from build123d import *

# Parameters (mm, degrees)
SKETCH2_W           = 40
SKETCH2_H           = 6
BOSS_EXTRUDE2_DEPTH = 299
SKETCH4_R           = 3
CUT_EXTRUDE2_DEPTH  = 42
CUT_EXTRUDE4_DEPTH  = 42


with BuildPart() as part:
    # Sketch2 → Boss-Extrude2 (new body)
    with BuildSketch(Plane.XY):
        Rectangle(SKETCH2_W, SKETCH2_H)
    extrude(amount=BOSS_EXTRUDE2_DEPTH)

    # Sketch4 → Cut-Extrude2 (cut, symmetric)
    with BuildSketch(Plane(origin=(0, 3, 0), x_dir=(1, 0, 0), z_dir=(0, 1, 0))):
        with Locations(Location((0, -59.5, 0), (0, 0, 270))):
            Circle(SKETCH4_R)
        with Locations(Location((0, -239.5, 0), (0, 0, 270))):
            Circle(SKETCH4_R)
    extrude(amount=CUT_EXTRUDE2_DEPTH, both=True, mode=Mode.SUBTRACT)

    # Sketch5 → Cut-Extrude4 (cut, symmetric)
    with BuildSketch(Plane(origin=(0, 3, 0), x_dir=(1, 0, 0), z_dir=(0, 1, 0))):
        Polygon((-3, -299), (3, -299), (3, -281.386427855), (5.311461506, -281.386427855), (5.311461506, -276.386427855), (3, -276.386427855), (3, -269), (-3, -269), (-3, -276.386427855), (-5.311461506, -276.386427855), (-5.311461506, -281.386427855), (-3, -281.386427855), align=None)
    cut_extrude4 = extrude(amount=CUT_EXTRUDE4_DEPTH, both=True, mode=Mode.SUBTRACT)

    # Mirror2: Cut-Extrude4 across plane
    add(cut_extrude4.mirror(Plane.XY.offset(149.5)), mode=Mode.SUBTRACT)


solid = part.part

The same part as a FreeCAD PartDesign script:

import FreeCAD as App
import Part
import Sketcher

doc = App.newDocument("Part")
body = doc.addObject("PartDesign::Body", "Body")

# Sketch on XY plane
sketch1 = body.newObject("Sketcher::SketchObject", "Sketch")
sketch1.AttachmentSupport = (doc.getObject("XY_Plane"), [""])
sketch1.MapMode = "FlatFace"
sketch1.addGeometry(Part.LineSegment(App.Vector(-20, 3, 0), App.Vector(-20, -3, 0)), False)
sketch1.addGeometry(Part.LineSegment(App.Vector(-20, -3, 0), App.Vector(20, -3, 0)), False)
sketch1.addGeometry(Part.LineSegment(App.Vector(20, -3, 0), App.Vector(20, 3, 0)), False)
sketch1.addGeometry(Part.LineSegment(App.Vector(20, 3, 0), App.Vector(-20, 3, 0)), False)
sketch1.addConstraint(Sketcher.Constraint("Coincident", 0, 2, 1, 1))
sketch1.addConstraint(Sketcher.Constraint("Coincident", 1, 2, 2, 1))
sketch1.addConstraint(Sketcher.Constraint("Coincident", 2, 2, 3, 1))
sketch1.addConstraint(Sketcher.Constraint("Coincident", 3, 2, 0, 1))
sketch1.addConstraint(Sketcher.Constraint("Vertical", 0))
sketch1.addConstraint(Sketcher.Constraint("Horizontal", 1))
sketch1.addConstraint(Sketcher.Constraint("Vertical", 2))
sketch1.addConstraint(Sketcher.Constraint("Horizontal", 3))
sketch1.addConstraint(Sketcher.Constraint("Symmetric", 0, 2, 2, 2, -1, 1))
sketch1.addConstraint(Sketcher.Constraint("DistanceX", 1, 1, 1, 2, 40.0))
sketch1.addConstraint(Sketcher.Constraint("DistanceY", 0, 2, 0, 1, 6.0))
pad1 = body.newObject("PartDesign::Pad", "Pad")
pad1.Profile = sketch1
pad1.Length = 299

# Sketch on XZ plane
sketch2 = body.newObject("Sketcher::SketchObject", "Sketch001")
sketch2.AttachmentSupport = (doc.getObject("XZ_Plane"), [""])
sketch2.MapMode = "FlatFace"
sketch2.AttachmentOffset = App.Placement(App.Vector(0, 0, -3), App.Rotation())
sketch2.addGeometry(Part.Circle(App.Vector(0, 59.5, 0), App.Vector(0, 0, 1), 3), False)
sketch2.addGeometry(Part.Circle(App.Vector(0, 239.5, 0), App.Vector(0, 0, 1), 3), False)
sketch2.addConstraint(Sketcher.Constraint("Equal", 0, 1))
sketch2.addConstraint(Sketcher.Constraint("PointOnObject", 0, 3, -2))
sketch2.addConstraint(Sketcher.Constraint("PointOnObject", 1, 3, -2))
sketch2.addConstraint(Sketcher.Constraint("Diameter", 0, 6.0))
sketch2.addConstraint(Sketcher.Constraint("DistanceY", 0, 3, 1, 3, 180.0))
sketch2.addConstraint(Sketcher.Constraint("DistanceY", -1, 1, 0, 3, 59.5))
pocket1 = body.newObject("PartDesign::Pocket", "Pocket")
pocket1.Profile = sketch2
pocket1.Length = 84
pocket1.Midplane = True

# Sketch on XZ plane
sketch3 = body.newObject("Sketcher::SketchObject", "Sketch002")
sketch3.AttachmentSupport = (doc.getObject("XZ_Plane"), [""])
sketch3.MapMode = "FlatFace"
sketch3.AttachmentOffset = App.Placement(App.Vector(0, 0, -3), App.Rotation())
sketch3.addGeometry(Part.LineSegment(App.Vector(-3, 299, 0), App.Vector(3, 299, 0)), False)
sketch3.addGeometry(Part.LineSegment(App.Vector(3, 299, 0), App.Vector(3, 281.4, 0)), False)
sketch3.addGeometry(Part.LineSegment(App.Vector(3, 281.4, 0), App.Vector(5.3, 281.4, 0)), False)
sketch3.addGeometry(Part.LineSegment(App.Vector(5.3, 281.4, 0), App.Vector(5.3, 276.4, 0)), False)
sketch3.addGeometry(Part.LineSegment(App.Vector(5.3, 276.4, 0), App.Vector(3, 276.4, 0)), False)
sketch3.addGeometry(Part.LineSegment(App.Vector(3, 276.4, 0), App.Vector(3, 269, 0)), False)
sketch3.addGeometry(Part.LineSegment(App.Vector(3, 269, 0), App.Vector(-3, 269, 0)), False)
sketch3.addGeometry(Part.LineSegment(App.Vector(-3, 269, 0), App.Vector(-3, 276.4, 0)), False)
sketch3.addGeometry(Part.LineSegment(App.Vector(-3, 276.4, 0), App.Vector(-5.3, 276.4, 0)), False)
sketch3.addGeometry(Part.LineSegment(App.Vector(-5.3, 276.4, 0), App.Vector(-5.3, 281.4, 0)), False)
sketch3.addGeometry(Part.LineSegment(App.Vector(-5.3, 281.4, 0), App.Vector(-3, 281.4, 0)), False)
sketch3.addGeometry(Part.LineSegment(App.Vector(-3, 281.4, 0), App.Vector(-3, 299, 0)), False)
sketch3.addConstraint(Sketcher.Constraint("Coincident", 0, 2, 1, 1))
sketch3.addConstraint(Sketcher.Constraint("Coincident", 1, 2, 2, 1))
sketch3.addConstraint(Sketcher.Constraint("Coincident", 2, 2, 3, 1))
sketch3.addConstraint(Sketcher.Constraint("Coincident", 3, 2, 4, 1))
sketch3.addConstraint(Sketcher.Constraint("Coincident", 4, 2, 5, 1))
sketch3.addConstraint(Sketcher.Constraint("Coincident", 5, 2, 6, 1))
sketch3.addConstraint(Sketcher.Constraint("Coincident", 6, 2, 7, 1))
sketch3.addConstraint(Sketcher.Constraint("Coincident", 7, 2, 8, 1))
sketch3.addConstraint(Sketcher.Constraint("Coincident", 8, 2, 9, 1))
sketch3.addConstraint(Sketcher.Constraint("Coincident", 9, 2, 10, 1))
sketch3.addConstraint(Sketcher.Constraint("Coincident", 10, 2, 11, 1))
sketch3.addConstraint(Sketcher.Constraint("Coincident", 11, 2, 0, 1))
sketch3.addConstraint(Sketcher.Constraint("Horizontal", 0))
sketch3.addConstraint(Sketcher.Constraint("Vertical", 1))
sketch3.addConstraint(Sketcher.Constraint("Horizontal", 2))
sketch3.addConstraint(Sketcher.Constraint("Vertical", 3))
sketch3.addConstraint(Sketcher.Constraint("Horizontal", 4))
sketch3.addConstraint(Sketcher.Constraint("Vertical", 5))
sketch3.addConstraint(Sketcher.Constraint("Horizontal", 6))
sketch3.addConstraint(Sketcher.Constraint("Vertical", 7))
sketch3.addConstraint(Sketcher.Constraint("Horizontal", 8))
sketch3.addConstraint(Sketcher.Constraint("Vertical", 9))
sketch3.addConstraint(Sketcher.Constraint("Horizontal", 10))
sketch3.addConstraint(Sketcher.Constraint("Vertical", 11))
sketch3.addConstraint(Sketcher.Constraint("Symmetric", 4, 2, 7, 2, -2))
sketch3.addConstraint(Sketcher.Constraint("Symmetric", 2, 2, 9, 2, -2))
sketch3.addConstraint(Sketcher.Constraint("Vertical", 1, 2, 4, 2))
sketch3.addConstraint(Sketcher.Constraint("Vertical", 7, 2, 10, 2))
sketch3.addConstraint(Sketcher.Constraint("DistanceX", 0, 1, 0, 2, 6.0))
sketch3.addConstraint(Sketcher.Constraint("DistanceY", 3, 2, 3, 1, 5.0))
sketch3.addConstraint(Sketcher.Constraint("DistanceY", -1, 1, 0, 2, 299.0))
sketch3.addConstraint(Sketcher.Constraint("DistanceY", -1, 1, 5, 2, 269.0))
sketch3.addConstraint(Sketcher.Constraint("DistanceX", 2, 1, 2, 2, 2.311462))
sketch3.addConstraint(Sketcher.Constraint("DistanceY", 1, 2, 1, 1, 17.613572))
pocket2 = body.newObject("PartDesign::Pocket", "Pocket001")
pocket2.Profile = sketch3
pocket2.Length = 84
pocket2.Midplane = True
doc.recompute()

datumplane = body.newObject("PartDesign::Plane", "DatumPlane")
datumplane.AttachmentSupport = (doc.getObject("XY_Plane"), [""])
datumplane.MapMode = "FlatFace"
datumplane.AttachmentOffset = App.Placement(App.Vector(0, 0, 149.5), App.Rotation())
mirrored = body.newObject("PartDesign::Mirrored", "Mirrored")
mirrored.Originals = [pocket2]
mirrored.MirrorPlane = (datumplane, [""])
body.Tip = mirrored

doc.recompute()
